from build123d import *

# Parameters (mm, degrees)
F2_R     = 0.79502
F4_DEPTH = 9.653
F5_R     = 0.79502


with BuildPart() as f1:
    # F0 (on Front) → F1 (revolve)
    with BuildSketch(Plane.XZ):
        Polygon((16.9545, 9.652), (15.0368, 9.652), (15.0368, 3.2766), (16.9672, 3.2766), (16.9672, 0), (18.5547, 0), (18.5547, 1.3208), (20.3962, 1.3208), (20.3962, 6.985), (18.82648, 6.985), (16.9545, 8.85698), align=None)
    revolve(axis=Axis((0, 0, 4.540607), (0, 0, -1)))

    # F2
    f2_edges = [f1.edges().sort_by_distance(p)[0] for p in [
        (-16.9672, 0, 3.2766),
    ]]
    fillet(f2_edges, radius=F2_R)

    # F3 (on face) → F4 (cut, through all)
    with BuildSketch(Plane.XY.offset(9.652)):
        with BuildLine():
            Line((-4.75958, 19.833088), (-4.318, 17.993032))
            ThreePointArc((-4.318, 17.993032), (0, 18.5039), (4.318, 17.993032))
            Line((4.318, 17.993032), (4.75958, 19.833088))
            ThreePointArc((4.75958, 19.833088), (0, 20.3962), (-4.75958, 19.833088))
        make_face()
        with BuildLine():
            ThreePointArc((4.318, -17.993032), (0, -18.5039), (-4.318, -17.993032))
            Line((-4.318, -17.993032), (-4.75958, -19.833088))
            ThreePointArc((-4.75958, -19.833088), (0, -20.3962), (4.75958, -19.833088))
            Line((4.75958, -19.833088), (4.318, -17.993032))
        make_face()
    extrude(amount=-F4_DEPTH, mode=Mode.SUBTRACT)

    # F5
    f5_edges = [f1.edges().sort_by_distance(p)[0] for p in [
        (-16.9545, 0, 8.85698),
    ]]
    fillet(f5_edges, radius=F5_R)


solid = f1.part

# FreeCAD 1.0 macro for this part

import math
import FreeCAD as App
import Part
import Sketcher
Q = App.Units.Quantity


def edges_at(feature, points):
    """Names of the edges that pass closest to the given points."""
    edges = feature.Shape.Edges
    near = lambda p: min(range(len(edges)), key=lambda i: edges[i].distToShape(Part.Vertex(*p))[0])
    return sorted({f"Edge{near(p) + 1}" for p in points})

doc = App.newDocument("Part")
body = doc.addObject("PartDesign::Body", "Body")

# Sketch on XZ plane
sketch1 = body.newObject("Sketcher::SketchObject", "Sketch")
sketch1.AttachmentSupport = (doc.getObject("XZ_Plane"), [""])
sketch1.MapMode = "FlatFace"
sketch1.addGeometry([
    Part.LineSegment(App.Vector(16.9545, 9.652, 0), App.Vector(15.0368, 9.652, 0)),  # 0
    Part.LineSegment(App.Vector(15.0368, 9.652, 0), App.Vector(15.0368, 3.2766, 0)),  # 1
    Part.LineSegment(App.Vector(15.0368, 3.2766, 0), App.Vector(16.9672, 3.2766, 0)),  # 2
    Part.LineSegment(App.Vector(16.9672, 3.2766, 0), App.Vector(16.9672, 0, 0)),  # 3
    Part.LineSegment(App.Vector(16.9672, 0, 0), App.Vector(18.5547, 0, 0)),  # 4
    Part.LineSegment(App.Vector(18.5547, 0, 0), App.Vector(18.5547, 1.3208, 0)),  # 5
    Part.LineSegment(App.Vector(18.5547, 1.3208, 0), App.Vector(20.3962, 1.3208, 0)),  # 6
    Part.LineSegment(App.Vector(20.3962, 1.3208, 0), App.Vector(20.3962, 6.985, 0)),  # 7
    Part.LineSegment(App.Vector(20.3962, 6.985, 0), App.Vector(18.82648, 6.985, 0)),  # 8
    Part.LineSegment(App.Vector(18.82648, 6.985, 0), App.Vector(16.9545, 8.85698, 0)),  # 9
    Part.LineSegment(App.Vector(16.9545, 8.85698, 0), App.Vector(16.9545, 9.652, 0)),  # 10
], False)
sketch1.addConstraint([
    Sketcher.Constraint("Coincident", 0, 2, 1, 1),
    Sketcher.Constraint("Coincident", 1, 2, 2, 1),
    Sketcher.Constraint("Coincident", 2, 2, 3, 1),
    Sketcher.Constraint("Coincident", 3, 2, 4, 1),
    Sketcher.Constraint("Coincident", 4, 2, 5, 1),
    Sketcher.Constraint("Coincident", 5, 2, 6, 1),
    Sketcher.Constraint("Coincident", 6, 2, 7, 1),
    Sketcher.Constraint("Coincident", 7, 2, 8, 1),
    Sketcher.Constraint("Coincident", 8, 2, 9, 1),
    Sketcher.Constraint("Coincident", 9, 2, 10, 1),
    Sketcher.Constraint("Coincident", 10, 2, 0, 1),
    Sketcher.Constraint("Horizontal", 0),
    Sketcher.Constraint("Vertical", 1),
    Sketcher.Constraint("Horizontal", 2),
    Sketcher.Constraint("Vertical", 3),
    Sketcher.Constraint("Horizontal", 4),
    Sketcher.Constraint("Vertical", 5),
    Sketcher.Constraint("Horizontal", 6),
    Sketcher.Constraint("Vertical", 7),
    Sketcher.Constraint("Horizontal", 8),
    Sketcher.Constraint("Vertical", 10),
    Sketcher.Constraint("PointOnObject", 3, 2, -1),
    Sketcher.Constraint("Angle", 9, Q("135 deg")),
    Sketcher.Constraint("DistanceX", 2, 1, 2, 2, Q("0.076 in")),
    Sketcher.Constraint("DistanceX", 4, 1, 4, 2, Q("0.0625 in")),
    Sketcher.Constraint("DistanceY", 1, 2, 1, 1, Q("0.251 in")),
    Sketcher.Constraint("DistanceY", 3, 2, 3, 1, Q("0.129 in")),
    Sketcher.Constraint("DistanceY", 5, 1, 5, 2, Q("0.052 in")),
    Sketcher.Constraint("DistanceY", 7, 1, 7, 2, Q("0.223 in")),
    Sketcher.Constraint("DistanceX", 0, 2, 0, 1, Q("0.0755 in")),
    Sketcher.Constraint("DistanceX", 6, 1, 6, 2, Q("0.0725 in")),
    Sketcher.Constraint("DistanceX", 8, 2, 8, 1, Q("0.0618 in")),
    Sketcher.Constraint("DistanceX", -1, 1, 0, 2, Q("0.592 in")),
])
revolution = body.newObject("PartDesign::Revolution", "Revolution")
revolution.Profile = sketch1
revolution.ReferenceAxis = (sketch1, ["V_Axis"])
revolution.Angle = 360
doc.recompute()

fillet = body.newObject("PartDesign::Fillet", "Fillet")
fillet.Base = (revolution, edges_at(revolution, [(-16.967, 0, 3.277)]))
fillet.Radius = Q("0.0313 in")

# Sketch on XY plane
sketch2 = body.newObject("Sketcher::SketchObject", "Sketch001")
sketch2.AttachmentSupport = (doc.getObject("XY_Plane"), [""])
sketch2.MapMode = "FlatFace"
sketch2.AttachmentOffset = App.Placement(App.Vector(0, 0, 0.38 * 25.4), App.Rotation())
sketch2.addGeometry([
    Part.LineSegment(App.Vector(-4.75958, 19.833088, 0), App.Vector(-4.318, 17.993032, 0)),  # 0
    Part.ArcOfCircle(Part.Circle(App.Vector(0, -0.000009, 0), App.Vector(0, 0, 1), 18.503909), math.radians(76.50526), math.radians(103.49474)),  # 1
    Part.LineSegment(App.Vector(4.318, 17.993032, 0), App.Vector(4.75958, 19.833088, 0)),  # 2
    Part.ArcOfCircle(Part.Circle(App.Vector(0, -0.000006, 0), App.Vector(0, 0, 1), 20.396206), math.radians(76.505257), math.radians(103.494743)),  # 3
    Part.ArcOfCircle(Part.Circle(App.Vector(0, 0.000009, 0), App.Vector(0, 0, 1), 18.503909), math.radians(-103.49474), math.radians(-76.50526)),  # 4
    Part.LineSegment(App.Vector(-4.318, -17.993032, 0), App.Vector(-4.75958, -19.833088, 0)),  # 5
    Part.ArcOfCircle(Part.Circle(App.Vector(0, 0.000006, 0), App.Vector(0, 0, 1), 20.396206), math.radians(-103.494743), math.radians(-76.505257)),  # 6
    Part.LineSegment(App.Vector(4.75958, -19.833088, 0), App.Vector(4.318, -17.993032, 0)),  # 7
], False)
sketch2.addConstraint([
    Sketcher.Constraint("Coincident", 0, 2, 1, 2),
    Sketcher.Constraint("Coincident", 1, 1, 2, 1),
    Sketcher.Constraint("Coincident", 2, 2, 3, 1),
    Sketcher.Constraint("Coincident", 3, 2, 0, 1),
    Sketcher.Constraint("Coincident", 4, 1, 5, 1),
    Sketcher.Constraint("Coincident", 5, 2, 6, 1),
    Sketcher.Constraint("Coincident", 6, 2, 7, 1),
    Sketcher.Constraint("Coincident", 7, 2, 4, 2),
    Sketcher.Constraint("Coincident", 1, 3, -1, 1),
    Sketcher.Constraint("Coincident", 3, 3, -1, 1),
    Sketcher.Constraint("Coincident", 4, 3, -1, 1),
    Sketcher.Constraint("Coincident", 6, 3, -1, 1),
    Sketcher.Constraint("Equal", 1, 4),
    Sketcher.Constraint("Equal", 3, 6),
    Sketcher.Constraint("Parallel", 2, 5),
    Sketcher.Constraint("Parallel", 0, 7),
    Sketcher.Constraint("Horizontal", 0, 2, 1, 1),
    Sketcher.Constraint("Horizontal", 2, 2, 3, 2),
    Sketcher.Constraint("Horizontal", 5, 2, 6, 2),
    Sketcher.Constraint("Vertical", 0, 2, 4, 1),
    Sketcher.Constraint("DistanceX", 0, 2, -1, 1, Q("0.17 in")),
    Sketcher.Constraint("Radius", 1, Q("18.503909 mm")),
    Sketcher.Constraint("Distance", 0, Q("0.0745 in")),
    Sketcher.Constraint("DistanceX", -1, 1, 2, 2, Q("4.75958 mm")),
])
pocket1 = body.newObject("PartDesign::Pocket", "Pocket")
pocket1.Profile = sketch2
pocket1.Type = "ThroughAll"
doc.recompute()

fillet2 = body.newObject("PartDesign::Fillet", "Fillet001")
fillet2.Base = (pocket1, edges_at(pocket1, [(-16.954, 0, 8.857)]))
fillet2.Radius = Q("0.0313 in")

doc.recompute()
